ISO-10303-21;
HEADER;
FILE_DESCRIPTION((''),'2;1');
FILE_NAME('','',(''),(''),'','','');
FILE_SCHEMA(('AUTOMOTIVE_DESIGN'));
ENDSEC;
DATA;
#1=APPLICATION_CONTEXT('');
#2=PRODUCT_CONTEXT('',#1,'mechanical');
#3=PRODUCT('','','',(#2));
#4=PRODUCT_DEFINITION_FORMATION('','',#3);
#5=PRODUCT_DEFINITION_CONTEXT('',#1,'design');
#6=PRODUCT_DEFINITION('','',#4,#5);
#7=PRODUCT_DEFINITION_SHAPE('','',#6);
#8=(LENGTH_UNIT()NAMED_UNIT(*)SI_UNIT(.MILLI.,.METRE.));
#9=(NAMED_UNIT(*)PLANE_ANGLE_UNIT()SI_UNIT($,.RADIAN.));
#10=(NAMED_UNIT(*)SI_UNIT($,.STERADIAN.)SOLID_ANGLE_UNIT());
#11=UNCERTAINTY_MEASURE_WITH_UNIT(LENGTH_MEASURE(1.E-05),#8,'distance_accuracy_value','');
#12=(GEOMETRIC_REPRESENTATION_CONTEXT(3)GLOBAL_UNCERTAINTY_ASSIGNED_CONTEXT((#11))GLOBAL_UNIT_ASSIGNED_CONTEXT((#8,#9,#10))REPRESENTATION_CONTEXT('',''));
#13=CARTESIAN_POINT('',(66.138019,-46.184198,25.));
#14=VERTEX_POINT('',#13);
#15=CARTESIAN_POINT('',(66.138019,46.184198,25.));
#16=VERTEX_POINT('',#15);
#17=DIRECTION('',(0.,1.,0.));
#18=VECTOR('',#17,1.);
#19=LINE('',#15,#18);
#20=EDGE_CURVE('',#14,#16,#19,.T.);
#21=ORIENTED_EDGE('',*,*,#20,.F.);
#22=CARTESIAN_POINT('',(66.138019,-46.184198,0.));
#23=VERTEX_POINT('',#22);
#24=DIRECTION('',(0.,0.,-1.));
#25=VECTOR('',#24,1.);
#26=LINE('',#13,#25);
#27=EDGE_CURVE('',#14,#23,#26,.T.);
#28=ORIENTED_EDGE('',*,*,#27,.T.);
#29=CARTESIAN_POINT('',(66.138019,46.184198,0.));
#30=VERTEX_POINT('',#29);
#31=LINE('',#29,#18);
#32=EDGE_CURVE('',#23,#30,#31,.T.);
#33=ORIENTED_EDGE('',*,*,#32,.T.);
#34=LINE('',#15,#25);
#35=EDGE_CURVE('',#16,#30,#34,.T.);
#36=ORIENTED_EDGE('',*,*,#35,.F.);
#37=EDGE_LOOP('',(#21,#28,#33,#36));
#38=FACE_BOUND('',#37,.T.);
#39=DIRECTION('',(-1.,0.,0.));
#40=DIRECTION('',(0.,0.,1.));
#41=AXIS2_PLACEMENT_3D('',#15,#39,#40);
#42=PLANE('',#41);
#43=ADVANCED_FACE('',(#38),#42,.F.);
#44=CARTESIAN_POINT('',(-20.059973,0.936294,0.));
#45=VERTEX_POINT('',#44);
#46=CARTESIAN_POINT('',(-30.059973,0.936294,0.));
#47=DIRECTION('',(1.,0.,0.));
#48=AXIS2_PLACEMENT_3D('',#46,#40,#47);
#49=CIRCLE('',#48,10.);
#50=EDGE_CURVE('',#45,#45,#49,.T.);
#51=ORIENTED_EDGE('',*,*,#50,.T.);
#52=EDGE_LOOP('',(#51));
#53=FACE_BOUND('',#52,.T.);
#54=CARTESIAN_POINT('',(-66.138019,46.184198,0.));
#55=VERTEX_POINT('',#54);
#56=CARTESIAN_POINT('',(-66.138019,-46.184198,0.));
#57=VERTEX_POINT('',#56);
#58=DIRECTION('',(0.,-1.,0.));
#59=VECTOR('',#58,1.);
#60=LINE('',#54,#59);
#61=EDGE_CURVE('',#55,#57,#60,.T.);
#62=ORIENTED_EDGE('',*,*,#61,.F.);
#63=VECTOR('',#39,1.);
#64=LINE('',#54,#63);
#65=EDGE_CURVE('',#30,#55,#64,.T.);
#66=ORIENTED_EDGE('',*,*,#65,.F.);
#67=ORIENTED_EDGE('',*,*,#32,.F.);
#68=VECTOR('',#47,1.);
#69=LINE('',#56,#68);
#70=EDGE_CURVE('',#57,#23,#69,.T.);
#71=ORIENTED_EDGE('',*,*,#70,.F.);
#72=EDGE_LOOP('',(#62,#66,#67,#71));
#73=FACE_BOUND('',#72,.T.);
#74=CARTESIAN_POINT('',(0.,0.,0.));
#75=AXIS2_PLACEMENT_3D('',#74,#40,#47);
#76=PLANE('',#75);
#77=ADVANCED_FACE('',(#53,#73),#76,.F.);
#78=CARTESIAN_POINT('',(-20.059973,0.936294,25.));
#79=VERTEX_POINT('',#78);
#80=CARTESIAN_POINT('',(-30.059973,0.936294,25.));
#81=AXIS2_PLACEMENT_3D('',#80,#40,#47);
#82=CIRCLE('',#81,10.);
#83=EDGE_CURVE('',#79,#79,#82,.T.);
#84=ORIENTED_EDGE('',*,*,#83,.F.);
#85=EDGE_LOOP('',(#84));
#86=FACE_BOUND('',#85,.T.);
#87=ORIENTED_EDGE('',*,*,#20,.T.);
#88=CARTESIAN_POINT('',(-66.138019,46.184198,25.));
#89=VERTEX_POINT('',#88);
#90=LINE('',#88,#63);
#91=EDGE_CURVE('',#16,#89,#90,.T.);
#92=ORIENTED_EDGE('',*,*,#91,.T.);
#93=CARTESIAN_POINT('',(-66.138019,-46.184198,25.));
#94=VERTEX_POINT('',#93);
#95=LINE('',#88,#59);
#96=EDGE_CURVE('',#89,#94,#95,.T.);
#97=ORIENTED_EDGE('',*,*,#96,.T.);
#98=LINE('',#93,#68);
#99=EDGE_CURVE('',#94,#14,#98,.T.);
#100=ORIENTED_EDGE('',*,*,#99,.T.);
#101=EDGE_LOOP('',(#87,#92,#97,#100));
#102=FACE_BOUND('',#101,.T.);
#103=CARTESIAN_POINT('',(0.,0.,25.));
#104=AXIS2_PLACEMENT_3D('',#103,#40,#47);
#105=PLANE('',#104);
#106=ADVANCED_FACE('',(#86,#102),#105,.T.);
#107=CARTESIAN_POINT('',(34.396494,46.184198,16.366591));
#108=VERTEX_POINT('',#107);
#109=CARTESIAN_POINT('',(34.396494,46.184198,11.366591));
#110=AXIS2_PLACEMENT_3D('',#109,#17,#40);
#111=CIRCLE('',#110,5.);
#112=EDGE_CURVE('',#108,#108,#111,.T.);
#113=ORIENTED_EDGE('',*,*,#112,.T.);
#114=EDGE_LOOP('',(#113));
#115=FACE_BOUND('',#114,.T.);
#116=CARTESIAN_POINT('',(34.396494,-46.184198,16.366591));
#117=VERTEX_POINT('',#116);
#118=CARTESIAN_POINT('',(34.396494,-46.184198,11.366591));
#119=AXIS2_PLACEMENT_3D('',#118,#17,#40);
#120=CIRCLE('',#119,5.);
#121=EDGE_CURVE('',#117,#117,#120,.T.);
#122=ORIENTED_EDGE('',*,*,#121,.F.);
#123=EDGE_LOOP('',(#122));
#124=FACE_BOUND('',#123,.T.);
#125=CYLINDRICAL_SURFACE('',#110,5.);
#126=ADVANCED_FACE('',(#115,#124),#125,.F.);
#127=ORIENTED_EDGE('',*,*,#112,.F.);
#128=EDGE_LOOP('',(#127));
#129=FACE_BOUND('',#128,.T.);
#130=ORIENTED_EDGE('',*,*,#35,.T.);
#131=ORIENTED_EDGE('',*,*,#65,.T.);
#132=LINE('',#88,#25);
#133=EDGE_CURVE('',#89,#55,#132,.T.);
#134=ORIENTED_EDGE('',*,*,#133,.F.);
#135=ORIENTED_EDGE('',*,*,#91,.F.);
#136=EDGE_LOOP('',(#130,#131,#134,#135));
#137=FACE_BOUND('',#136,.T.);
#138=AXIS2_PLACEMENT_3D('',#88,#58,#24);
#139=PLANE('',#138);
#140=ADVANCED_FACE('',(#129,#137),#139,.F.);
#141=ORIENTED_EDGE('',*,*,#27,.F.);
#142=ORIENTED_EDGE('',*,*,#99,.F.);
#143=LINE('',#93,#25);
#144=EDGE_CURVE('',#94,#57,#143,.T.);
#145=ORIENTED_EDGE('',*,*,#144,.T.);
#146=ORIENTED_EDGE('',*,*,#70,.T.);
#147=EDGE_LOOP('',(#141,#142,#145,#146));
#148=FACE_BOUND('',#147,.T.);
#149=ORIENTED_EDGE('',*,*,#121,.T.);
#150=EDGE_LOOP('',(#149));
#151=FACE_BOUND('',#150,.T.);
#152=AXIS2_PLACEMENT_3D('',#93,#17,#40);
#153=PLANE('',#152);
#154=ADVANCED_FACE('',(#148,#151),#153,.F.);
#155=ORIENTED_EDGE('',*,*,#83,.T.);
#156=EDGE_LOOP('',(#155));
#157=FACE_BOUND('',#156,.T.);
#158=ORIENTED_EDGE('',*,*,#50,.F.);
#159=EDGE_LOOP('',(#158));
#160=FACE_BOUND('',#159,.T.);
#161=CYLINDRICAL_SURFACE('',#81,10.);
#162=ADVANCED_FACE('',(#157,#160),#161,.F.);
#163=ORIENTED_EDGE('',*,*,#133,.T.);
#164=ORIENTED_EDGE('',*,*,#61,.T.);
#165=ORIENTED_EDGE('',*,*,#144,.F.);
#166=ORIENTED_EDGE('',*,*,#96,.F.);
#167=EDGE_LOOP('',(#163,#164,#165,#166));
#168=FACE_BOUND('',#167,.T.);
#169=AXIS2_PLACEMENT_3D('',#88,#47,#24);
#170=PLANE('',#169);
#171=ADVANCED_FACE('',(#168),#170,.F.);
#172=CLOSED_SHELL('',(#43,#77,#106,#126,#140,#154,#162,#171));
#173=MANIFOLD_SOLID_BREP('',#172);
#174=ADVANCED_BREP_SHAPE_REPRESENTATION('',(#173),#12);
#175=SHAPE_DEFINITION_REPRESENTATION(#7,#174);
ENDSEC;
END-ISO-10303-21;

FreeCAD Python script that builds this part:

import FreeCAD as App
import Part
import Sketcher
from FreeCAD import Vector


def add_polygon(sketch, points):
    """Adds a closed chain of lines whose ends are joined by coincident constraints."""
    first, n = sketch.GeometryCount, len(points)
    for a, b in zip(points, points[1:] + points[:1]):
        sketch.addGeometry(Part.LineSegment(App.Vector(*a, 0), App.Vector(*b, 0)), False)
    for i in range(n):
        sketch.addConstraint(Sketcher.Constraint("Coincident", first + i, 2, first + (i + 1) % n, 1))

doc = App.newDocument("Part")
body = doc.addObject("PartDesign::Body", "Body")

sketch1 = doc.addObject("Sketcher::SketchObject", "Sketch")
body.addObject(sketch1)
sketch1.AttachmentSupport = (doc.XY_Plane, [""])
sketch1.MapMode = "FlatFace"
add_polygon(sketch1, [(-66.138019, 46.184198), (-66.138019, -46.184198), (66.138019, -46.184198), (66.138019, 46.184198)])
sketch1.addConstraint([
    Sketcher.Constraint("Vertical", 0),
    Sketcher.Constraint("Horizontal", 1),
    Sketcher.Constraint("Vertical", 2),
    Sketcher.Constraint("Horizontal", 3),
    Sketcher.Constraint("Symmetric", 0, 2, 2, 2, -1, 1),
    Sketcher.Constraint("DistanceX", 1, 1, 1, 2, 132.276039),
    Sketcher.Constraint("DistanceY", 0, 2, 0, 1, 92.368396),
])
pad1 = doc.addObject("PartDesign::Pad", "Pad")
body.addObject(pad1)
pad1.Profile = sketch1
pad1.Length = 25

sketch2 = doc.addObject("Sketcher::SketchObject", "Sketch001")
body.addObject(sketch2)
sketch2.AttachmentSupport = (doc.XY_Plane, [""])
sketch2.MapMode = "FlatFace"
sketch2.AttachmentOffset = App.Placement(Vector(0, 0, 25), App.Rotation())
sketch2.addGeometry(Part.Circle(Vector(-30.059973, 0.936294, 0), Vector(0, 0, 1), 10), False)
sketch2.addConstraint([
    Sketcher.Constraint("Diameter", 0, 20.0),
    Sketcher.Constraint("DistanceX", 0, 3, -1, 1, 30.059973),
    Sketcher.Constraint("DistanceY", -1, 1, 0, 3, 0.936294),
])
doc.recompute()
hole = doc.addObject("PartDesign::Hole", "Hole")
body.addObject(hole)
hole.Profile = sketch2
hole.ThreadType = "None"
hole.Diameter = 20
hole.DepthType = "ThroughAll"

sketch3 = doc.addObject("Sketcher::SketchObject", "Sketch002")
body.addObject(sketch3)
sketch3.AttachmentSupport = (doc.XZ_Plane, [""])
sketch3.MapMode = "FlatFace"
sketch3.AttachmentOffset = App.Placement(Vector(0, 0, -46.184198), App.Rotation())
sketch3.addGeometry(Part.Circle(Vector(34.396494, 11.366591, 0), Vector(0, 0, 1), 5), False)
sketch3.addConstraint([
    Sketcher.Constraint("Diameter", 0, 10.0),
    Sketcher.Constraint("DistanceY", -1, 1, 0, 3, 11.366591),
    Sketcher.Constraint("DistanceX", -1, 1, 0, 3, 34.396494),
])
doc.recompute()
hole2 = doc.addObject("PartDesign::Hole", "Hole001")
body.addObject(hole2)
hole2.Profile = sketch3
hole2.ThreadType = "None"
hole2.Diameter = 10
hole2.DepthType = "ThroughAll"
hole2.Reversed = True

doc.recompute()
